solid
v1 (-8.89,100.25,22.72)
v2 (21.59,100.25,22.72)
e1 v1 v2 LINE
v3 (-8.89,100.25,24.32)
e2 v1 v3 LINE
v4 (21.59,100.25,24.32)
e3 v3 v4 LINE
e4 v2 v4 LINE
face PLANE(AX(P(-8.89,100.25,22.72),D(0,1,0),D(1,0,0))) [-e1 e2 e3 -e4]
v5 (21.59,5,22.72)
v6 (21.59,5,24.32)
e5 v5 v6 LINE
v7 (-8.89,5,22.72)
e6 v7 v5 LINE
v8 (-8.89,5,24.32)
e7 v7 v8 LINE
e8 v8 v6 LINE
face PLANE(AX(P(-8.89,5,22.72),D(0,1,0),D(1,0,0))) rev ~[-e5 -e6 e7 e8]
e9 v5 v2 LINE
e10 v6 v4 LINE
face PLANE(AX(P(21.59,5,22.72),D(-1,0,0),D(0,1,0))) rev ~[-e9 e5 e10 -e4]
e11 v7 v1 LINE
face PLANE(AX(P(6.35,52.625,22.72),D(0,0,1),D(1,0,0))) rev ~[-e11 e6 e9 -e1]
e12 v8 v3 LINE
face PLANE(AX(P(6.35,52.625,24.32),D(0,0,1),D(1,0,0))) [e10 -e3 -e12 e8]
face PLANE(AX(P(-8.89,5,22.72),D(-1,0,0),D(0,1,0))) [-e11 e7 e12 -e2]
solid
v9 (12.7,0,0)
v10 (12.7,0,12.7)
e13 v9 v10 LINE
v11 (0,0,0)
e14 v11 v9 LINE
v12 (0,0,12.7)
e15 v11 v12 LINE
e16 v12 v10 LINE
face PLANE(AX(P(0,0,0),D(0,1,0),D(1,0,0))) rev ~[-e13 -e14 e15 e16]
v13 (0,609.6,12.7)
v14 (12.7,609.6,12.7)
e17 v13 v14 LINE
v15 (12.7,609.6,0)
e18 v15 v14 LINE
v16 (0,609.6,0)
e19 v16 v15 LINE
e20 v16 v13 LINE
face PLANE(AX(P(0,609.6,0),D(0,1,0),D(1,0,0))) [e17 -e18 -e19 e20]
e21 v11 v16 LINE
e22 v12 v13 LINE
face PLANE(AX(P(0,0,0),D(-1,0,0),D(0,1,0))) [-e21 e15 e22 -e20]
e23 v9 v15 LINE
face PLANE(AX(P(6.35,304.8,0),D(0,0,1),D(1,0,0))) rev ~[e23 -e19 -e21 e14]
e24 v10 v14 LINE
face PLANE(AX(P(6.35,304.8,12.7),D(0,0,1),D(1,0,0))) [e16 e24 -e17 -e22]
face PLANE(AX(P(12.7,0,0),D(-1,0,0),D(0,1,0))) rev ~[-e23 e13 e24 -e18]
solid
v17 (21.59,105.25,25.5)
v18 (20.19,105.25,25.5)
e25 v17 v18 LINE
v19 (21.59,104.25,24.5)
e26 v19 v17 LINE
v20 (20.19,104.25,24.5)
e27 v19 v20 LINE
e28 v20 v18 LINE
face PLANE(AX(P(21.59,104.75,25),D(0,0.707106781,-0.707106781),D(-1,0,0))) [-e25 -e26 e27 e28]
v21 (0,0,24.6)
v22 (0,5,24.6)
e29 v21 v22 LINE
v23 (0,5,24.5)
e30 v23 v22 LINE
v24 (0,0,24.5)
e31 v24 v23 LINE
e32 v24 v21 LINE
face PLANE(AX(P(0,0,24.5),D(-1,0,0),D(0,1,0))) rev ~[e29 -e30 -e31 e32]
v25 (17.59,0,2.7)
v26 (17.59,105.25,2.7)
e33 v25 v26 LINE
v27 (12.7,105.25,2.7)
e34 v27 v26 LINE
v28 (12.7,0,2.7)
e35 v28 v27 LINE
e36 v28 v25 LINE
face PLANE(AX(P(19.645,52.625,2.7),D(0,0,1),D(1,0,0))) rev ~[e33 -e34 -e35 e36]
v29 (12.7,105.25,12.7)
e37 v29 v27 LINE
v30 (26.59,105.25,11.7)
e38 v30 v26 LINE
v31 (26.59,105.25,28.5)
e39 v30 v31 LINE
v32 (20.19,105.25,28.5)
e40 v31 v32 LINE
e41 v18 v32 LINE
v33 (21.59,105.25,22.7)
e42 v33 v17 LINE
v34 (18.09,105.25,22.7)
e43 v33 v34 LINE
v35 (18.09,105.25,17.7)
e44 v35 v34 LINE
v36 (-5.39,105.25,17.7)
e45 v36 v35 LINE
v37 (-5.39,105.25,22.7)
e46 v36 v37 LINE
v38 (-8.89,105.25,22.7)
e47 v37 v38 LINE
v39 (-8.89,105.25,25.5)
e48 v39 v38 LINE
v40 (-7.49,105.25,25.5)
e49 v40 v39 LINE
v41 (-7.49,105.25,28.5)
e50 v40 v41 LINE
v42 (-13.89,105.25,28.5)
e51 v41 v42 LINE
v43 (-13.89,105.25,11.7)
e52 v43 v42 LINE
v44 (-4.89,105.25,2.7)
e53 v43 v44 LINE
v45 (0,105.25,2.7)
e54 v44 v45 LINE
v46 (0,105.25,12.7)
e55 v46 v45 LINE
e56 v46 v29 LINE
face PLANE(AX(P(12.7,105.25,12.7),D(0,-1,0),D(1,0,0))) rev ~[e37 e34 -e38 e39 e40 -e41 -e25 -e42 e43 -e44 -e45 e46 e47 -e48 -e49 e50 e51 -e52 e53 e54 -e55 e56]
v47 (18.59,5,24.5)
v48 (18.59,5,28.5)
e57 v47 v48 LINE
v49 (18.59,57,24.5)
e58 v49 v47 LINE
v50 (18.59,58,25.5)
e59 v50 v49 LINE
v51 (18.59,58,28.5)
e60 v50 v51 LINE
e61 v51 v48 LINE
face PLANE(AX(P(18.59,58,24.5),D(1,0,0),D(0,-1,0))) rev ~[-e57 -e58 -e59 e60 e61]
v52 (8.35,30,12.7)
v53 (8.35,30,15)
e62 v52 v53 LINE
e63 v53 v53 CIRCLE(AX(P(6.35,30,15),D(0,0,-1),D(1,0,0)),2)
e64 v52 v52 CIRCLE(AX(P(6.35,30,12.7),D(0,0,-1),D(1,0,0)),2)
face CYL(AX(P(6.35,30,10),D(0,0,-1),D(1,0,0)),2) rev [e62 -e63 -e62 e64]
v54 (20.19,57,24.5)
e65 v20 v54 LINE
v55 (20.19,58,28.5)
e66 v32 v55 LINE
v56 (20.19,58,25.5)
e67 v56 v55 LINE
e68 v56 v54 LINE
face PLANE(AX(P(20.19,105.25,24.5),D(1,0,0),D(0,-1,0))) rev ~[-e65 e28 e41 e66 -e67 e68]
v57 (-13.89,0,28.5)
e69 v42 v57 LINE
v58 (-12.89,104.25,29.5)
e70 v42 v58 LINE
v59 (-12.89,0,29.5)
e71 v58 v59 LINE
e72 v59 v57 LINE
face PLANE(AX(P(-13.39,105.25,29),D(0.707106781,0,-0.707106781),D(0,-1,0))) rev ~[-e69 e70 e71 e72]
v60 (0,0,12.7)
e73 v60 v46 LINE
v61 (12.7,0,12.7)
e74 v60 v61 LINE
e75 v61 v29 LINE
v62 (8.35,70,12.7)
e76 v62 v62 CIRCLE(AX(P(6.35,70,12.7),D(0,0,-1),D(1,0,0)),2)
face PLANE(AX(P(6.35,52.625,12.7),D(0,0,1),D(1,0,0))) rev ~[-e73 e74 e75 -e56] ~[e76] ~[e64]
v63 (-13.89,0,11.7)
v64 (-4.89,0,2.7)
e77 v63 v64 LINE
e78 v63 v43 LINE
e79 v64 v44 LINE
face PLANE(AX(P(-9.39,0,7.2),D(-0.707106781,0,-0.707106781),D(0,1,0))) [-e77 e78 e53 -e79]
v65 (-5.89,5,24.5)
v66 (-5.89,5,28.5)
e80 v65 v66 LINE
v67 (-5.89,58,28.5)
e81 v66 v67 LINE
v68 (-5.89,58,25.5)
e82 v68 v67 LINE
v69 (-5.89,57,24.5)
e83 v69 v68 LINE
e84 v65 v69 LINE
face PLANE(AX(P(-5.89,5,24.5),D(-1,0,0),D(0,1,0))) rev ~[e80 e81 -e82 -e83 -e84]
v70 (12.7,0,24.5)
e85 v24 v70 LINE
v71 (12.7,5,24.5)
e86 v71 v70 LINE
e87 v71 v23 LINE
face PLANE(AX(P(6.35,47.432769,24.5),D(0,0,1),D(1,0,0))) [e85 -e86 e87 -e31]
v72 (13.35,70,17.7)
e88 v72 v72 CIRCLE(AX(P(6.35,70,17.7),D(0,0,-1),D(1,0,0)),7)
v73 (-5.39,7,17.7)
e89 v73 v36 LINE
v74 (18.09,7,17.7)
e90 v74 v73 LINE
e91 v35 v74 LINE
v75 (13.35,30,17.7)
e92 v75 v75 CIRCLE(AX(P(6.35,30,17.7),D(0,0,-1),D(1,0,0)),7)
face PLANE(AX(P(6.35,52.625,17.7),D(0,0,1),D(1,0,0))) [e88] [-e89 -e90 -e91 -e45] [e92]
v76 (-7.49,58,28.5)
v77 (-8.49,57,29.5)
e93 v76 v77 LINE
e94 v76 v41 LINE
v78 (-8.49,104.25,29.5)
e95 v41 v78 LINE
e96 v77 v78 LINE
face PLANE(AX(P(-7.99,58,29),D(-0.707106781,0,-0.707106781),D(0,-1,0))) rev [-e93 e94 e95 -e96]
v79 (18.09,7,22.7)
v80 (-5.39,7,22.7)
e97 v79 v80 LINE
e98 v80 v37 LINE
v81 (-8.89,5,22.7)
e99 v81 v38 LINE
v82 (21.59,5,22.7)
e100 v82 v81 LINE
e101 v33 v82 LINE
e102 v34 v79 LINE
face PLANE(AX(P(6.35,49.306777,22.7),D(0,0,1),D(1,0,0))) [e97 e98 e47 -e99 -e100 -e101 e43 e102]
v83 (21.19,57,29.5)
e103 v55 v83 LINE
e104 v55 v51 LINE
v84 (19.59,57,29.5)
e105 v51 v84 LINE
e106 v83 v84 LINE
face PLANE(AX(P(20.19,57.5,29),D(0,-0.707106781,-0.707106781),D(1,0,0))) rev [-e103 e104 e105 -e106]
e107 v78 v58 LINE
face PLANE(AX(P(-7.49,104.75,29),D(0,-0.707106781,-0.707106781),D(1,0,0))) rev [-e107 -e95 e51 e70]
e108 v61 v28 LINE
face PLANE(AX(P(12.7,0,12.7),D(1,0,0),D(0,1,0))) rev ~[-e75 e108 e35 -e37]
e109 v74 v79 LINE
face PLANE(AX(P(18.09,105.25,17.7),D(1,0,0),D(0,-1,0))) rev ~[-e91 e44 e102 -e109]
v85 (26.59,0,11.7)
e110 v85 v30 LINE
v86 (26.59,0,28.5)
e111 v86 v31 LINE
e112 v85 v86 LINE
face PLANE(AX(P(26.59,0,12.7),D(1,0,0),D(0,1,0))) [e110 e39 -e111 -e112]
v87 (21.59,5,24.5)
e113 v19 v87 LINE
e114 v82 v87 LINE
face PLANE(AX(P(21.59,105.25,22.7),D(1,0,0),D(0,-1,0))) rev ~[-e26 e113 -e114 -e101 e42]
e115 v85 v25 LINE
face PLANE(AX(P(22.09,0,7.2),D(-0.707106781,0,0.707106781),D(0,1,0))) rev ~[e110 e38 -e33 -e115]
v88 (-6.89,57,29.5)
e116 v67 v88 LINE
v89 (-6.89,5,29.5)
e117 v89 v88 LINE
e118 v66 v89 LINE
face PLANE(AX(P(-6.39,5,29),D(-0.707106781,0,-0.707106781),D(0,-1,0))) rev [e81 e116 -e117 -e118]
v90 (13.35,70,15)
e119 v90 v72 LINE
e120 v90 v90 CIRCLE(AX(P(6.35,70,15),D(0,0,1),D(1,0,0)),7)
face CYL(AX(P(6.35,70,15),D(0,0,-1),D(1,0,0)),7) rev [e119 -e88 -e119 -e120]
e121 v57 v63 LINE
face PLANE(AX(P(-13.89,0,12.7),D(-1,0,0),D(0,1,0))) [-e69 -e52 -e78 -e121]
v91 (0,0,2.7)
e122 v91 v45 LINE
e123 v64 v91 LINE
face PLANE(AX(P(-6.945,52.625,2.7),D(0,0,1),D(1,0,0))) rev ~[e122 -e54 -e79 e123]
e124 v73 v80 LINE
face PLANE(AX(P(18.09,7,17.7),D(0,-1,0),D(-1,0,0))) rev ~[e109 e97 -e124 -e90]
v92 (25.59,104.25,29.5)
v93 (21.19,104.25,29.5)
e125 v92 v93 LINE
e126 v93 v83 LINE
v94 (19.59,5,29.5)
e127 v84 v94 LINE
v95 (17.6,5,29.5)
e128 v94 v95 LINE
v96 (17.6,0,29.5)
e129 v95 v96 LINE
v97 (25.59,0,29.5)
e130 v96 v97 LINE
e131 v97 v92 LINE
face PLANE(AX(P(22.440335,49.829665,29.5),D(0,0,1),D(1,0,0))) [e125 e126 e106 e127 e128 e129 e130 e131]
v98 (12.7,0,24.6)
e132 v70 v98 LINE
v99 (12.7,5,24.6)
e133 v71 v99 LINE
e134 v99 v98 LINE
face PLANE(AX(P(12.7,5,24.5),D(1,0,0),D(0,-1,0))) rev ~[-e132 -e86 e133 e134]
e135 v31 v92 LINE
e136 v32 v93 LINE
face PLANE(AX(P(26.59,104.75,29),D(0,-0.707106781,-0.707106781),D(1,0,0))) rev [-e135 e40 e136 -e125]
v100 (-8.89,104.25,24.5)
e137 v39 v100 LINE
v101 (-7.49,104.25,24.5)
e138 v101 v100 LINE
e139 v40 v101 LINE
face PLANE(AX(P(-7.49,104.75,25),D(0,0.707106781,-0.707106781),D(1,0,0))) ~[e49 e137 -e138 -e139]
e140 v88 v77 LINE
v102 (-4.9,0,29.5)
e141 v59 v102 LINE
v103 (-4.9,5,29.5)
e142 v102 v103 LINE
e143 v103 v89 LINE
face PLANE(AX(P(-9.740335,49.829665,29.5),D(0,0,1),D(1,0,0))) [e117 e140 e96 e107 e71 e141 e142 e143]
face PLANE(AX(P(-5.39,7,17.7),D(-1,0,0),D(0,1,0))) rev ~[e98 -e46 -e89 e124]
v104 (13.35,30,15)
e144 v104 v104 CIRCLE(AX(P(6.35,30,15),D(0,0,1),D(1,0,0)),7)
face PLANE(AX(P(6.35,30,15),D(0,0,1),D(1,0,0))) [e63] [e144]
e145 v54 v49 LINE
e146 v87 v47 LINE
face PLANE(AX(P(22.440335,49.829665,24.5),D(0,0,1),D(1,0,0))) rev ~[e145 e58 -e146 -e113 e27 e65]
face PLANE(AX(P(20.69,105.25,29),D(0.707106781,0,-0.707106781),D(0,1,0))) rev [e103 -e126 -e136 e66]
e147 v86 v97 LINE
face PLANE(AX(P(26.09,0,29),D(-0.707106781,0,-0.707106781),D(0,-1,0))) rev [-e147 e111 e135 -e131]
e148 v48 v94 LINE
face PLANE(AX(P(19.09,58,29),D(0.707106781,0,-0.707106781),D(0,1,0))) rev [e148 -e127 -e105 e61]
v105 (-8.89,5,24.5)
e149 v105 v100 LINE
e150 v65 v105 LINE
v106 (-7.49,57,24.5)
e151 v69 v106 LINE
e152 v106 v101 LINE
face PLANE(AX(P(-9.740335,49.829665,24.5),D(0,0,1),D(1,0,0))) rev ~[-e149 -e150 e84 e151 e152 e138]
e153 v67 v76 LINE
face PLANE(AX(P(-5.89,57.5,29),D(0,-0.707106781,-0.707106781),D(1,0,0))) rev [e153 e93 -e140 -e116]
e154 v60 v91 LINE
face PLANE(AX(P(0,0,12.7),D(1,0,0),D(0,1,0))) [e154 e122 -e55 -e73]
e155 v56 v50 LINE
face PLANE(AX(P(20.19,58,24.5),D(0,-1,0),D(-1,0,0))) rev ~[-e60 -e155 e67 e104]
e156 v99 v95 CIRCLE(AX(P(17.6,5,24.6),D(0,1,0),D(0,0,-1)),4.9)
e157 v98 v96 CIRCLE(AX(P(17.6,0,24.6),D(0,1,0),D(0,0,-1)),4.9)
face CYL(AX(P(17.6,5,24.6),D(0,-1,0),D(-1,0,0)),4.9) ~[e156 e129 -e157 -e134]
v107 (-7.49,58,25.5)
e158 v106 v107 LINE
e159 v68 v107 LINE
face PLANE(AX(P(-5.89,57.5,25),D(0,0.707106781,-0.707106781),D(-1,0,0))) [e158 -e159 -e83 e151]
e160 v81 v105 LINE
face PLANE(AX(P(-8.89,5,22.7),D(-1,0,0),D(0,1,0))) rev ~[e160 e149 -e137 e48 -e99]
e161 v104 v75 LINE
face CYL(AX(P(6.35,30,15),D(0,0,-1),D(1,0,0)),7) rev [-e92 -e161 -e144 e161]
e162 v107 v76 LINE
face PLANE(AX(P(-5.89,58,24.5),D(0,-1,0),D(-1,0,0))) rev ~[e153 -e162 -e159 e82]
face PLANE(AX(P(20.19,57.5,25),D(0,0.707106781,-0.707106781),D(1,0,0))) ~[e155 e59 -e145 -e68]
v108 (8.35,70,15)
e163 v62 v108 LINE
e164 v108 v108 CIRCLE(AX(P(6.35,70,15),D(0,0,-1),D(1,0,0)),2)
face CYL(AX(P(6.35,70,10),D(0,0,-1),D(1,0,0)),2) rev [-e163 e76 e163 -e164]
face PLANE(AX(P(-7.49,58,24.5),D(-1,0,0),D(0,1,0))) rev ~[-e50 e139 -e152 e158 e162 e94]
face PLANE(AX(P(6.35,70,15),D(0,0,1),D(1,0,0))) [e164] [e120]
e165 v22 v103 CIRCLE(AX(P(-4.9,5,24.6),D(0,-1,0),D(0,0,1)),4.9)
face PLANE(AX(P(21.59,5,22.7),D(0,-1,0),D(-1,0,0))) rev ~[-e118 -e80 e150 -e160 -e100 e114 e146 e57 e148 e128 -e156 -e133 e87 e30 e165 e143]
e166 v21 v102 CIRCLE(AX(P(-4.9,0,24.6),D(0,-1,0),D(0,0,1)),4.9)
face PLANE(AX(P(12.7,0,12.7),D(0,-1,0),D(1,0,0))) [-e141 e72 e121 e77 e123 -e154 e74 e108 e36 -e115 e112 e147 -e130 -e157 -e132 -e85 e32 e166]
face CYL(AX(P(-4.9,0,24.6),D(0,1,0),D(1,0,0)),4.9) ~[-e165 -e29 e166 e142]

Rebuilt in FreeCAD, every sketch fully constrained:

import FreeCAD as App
import Part
import Sketcher
Q = App.Units.Quantity


def edges_at(feature, points):
    """Names of the edges that pass closest to the given points."""
    edges = feature.Shape.Edges
    near = lambda p: min(range(len(edges)), key=lambda i: edges[i].distToShape(Part.Vertex(*p))[0])
    return sorted({f"Edge{near(p) + 1}" for p in points})

doc = App.newDocument("Part")
body = doc.addObject("PartDesign::Body", "Body")

sketch1 = body.newObject("Sketcher::SketchObject", "Sketch")
sketch1.AttachmentSupport = (doc.getObject("XY_Plane"), [""])
sketch1.MapMode = "FlatFace"
sketch1.addGeometry(Part.LineSegment(App.Vector(0, 610, 0), App.Vector(0, 0, 0)), False)
sketch1.addGeometry(Part.LineSegment(App.Vector(0, 0, 0), App.Vector(13, 0, 0)), False)
sketch1.addGeometry(Part.LineSegment(App.Vector(13, 0, 0), App.Vector(13, 610, 0)), False)
sketch1.addGeometry(Part.LineSegment(App.Vector(13, 610, 0), App.Vector(0, 610, 0)), False)
sketch1.addConstraint(Sketcher.Constraint("Coincident", 0, 2, 1, 1))
sketch1.addConstraint(Sketcher.Constraint("Coincident", 1, 2, 2, 1))
sketch1.addConstraint(Sketcher.Constraint("Coincident", 2, 2, 3, 1))
sketch1.addConstraint(Sketcher.Constraint("Coincident", 3, 2, 0, 1))
sketch1.addConstraint(Sketcher.Constraint("Vertical", 0))
sketch1.addConstraint(Sketcher.Constraint("Horizontal", 1))
sketch1.addConstraint(Sketcher.Constraint("Vertical", 2))
sketch1.addConstraint(Sketcher.Constraint("Horizontal", 3))
sketch1.addConstraint(Sketcher.Constraint("Coincident", 0, 2, -1, 1))
sketch1.addConstraint(Sketcher.Constraint("DistanceX", 1, 1, 1, 2, Q("12.7 mm")))
sketch1.addConstraint(Sketcher.Constraint("DistanceY", 0, 2, 0, 1, Q("609.6 mm")))
pad1 = body.newObject("PartDesign::Pad", "Pad")
pad1.Profile = sketch1
pad1.Length = 12.7
body2 = doc.addObject("PartDesign::Body", "Body001")

sketch2 = body2.newObject("Sketcher::SketchObject", "Sketch001")
sketch2.AttachmentSupport = (doc.getObject("XY_Plane001"), [""])
sketch2.MapMode = "FlatFace"
sketch2.AttachmentOffset = App.Placement(App.Vector(0, 0, 22.72), App.Rotation())
sketch2.addGeometry(Part.LineSegment(App.Vector(-9, 100, 0), App.Vector(-9, 5, 0)), False)
sketch2.addGeometry(Part.LineSegment(App.Vector(-9, 5, 0), App.Vector(22, 5, 0)), False)
sketch2.addGeometry(Part.LineSegment(App.Vector(22, 5, 0), App.Vector(22, 100, 0)), False)
sketch2.addGeometry(Part.LineSegment(App.Vector(22, 100, 0), App.Vector(-9, 100, 0)), False)
sketch2.addConstraint(Sketcher.Constraint("Coincident", 0, 2, 1, 1))
sketch2.addConstraint(Sketcher.Constraint("Coincident", 1, 2, 2, 1))
sketch2.addConstraint(Sketcher.Constraint("Coincident", 2, 2, 3, 1))
sketch2.addConstraint(Sketcher.Constraint("Coincident", 3, 2, 0, 1))
sketch2.addConstraint(Sketcher.Constraint("Vertical", 0))
sketch2.addConstraint(Sketcher.Constraint("Horizontal", 1))
sketch2.addConstraint(Sketcher.Constraint("Vertical", 2))
sketch2.addConstraint(Sketcher.Constraint("Horizontal", 3))
sketch2.addConstraint(Sketcher.Constraint("DistanceY", -1, 1, 0, 2, Q("5 mm")))
sketch2.addConstraint(Sketcher.Constraint("DistanceX", 1, 1, 1, 2, Q("30.48 mm")))
sketch2.addConstraint(Sketcher.Constraint("DistanceY", 0, 2, 0, 1, Q("95.25 mm")))
sketch2.addConstraint(Sketcher.Constraint("DistanceX", 0, 2, -1, 1, Q("8.89 mm")))
pad2 = body2.newObject("PartDesign::Pad", "Pad001")
pad2.Profile = sketch2
pad2.Length = 1.6
body3 = doc.addObject("PartDesign::Body", "Body002")

sketch3 = body3.newObject("Sketcher::SketchObject", "Sketch002")
sketch3.AttachmentSupport = (doc.getObject("XY_Plane002"), [""])
sketch3.MapMode = "FlatFace"
sketch3.AttachmentOffset = App.Placement(App.Vector(0, 0, 15), App.Rotation())
sketch3.addGeometry(Part.Circle(App.Vector(6, 30, 0), App.Vector(0, 0, 1), 7), False)
sketch3.addConstraint(Sketcher.Constraint("Diameter", 0, Q("14 mm")))
sketch3.addConstraint(Sketcher.Constraint("DistanceY", -1, 1, 0, 3, Q("30 mm")))
sketch3.addConstraint(Sketcher.Constraint("DistanceX", -1, 1, 0, 3, Q("6.35 mm")))
pad3 = body3.newObject("PartDesign::Pad", "Pad002")
pad3.Profile = sketch3
pad3.Length = 3
body4 = doc.addObject("PartDesign::Body", "Body003")

sketch4 = body4.newObject("Sketcher::SketchObject", "Sketch003")
sketch4.AttachmentSupport = (doc.getObject("XY_Plane003"), [""])
sketch4.MapMode = "FlatFace"
sketch4.AttachmentOffset = App.Placement(App.Vector(0, 0, 15), App.Rotation())
sketch4.addGeometry(Part.Circle(App.Vector(6, 70, 0), App.Vector(0, 0, 1), 7), False)
sketch4.addConstraint(Sketcher.Constraint("Diameter", 0, Q("14 mm")))
sketch4.addConstraint(Sketcher.Constraint("DistanceY", -1, 1, 0, 3, Q("70 mm")))
sketch4.addConstraint(Sketcher.Constraint("DistanceX", -1, 1, 0, 3, Q("6.35 mm")))
pad4 = body4.newObject("PartDesign::Pad", "Pad003")
pad4.Profile = sketch4
pad4.Length = 3
body5 = doc.addObject("PartDesign::Body", "Body004")

sketch5 = body5.newObject("Sketcher::SketchObject", "Sketch004")
sketch5.AttachmentSupport = (doc.getObject("XY_Plane004"), [""])
sketch5.MapMode = "FlatFace"
sketch5.AttachmentOffset = App.Placement(App.Vector(0, 0, 10), App.Rotation())
sketch5.addGeometry(Part.Circle(App.Vector(6.3, 70, 0), App.Vector(0, 0, 1), 2), False)
sketch5.addConstraint(Sketcher.Constraint("Diameter", 0, Q("4 mm")))
sketch5.addConstraint(Sketcher.Constraint("DistanceY", -1, 1, 0, 3, Q("70 mm")))
sketch5.addConstraint(Sketcher.Constraint("DistanceX", -1, 1, 0, 3, Q("6.35 mm")))
pad5 = body5.newObject("PartDesign::Pad", "Pad004")
pad5.Profile = sketch5
pad5.Length = 10
body6 = doc.addObject("PartDesign::Body", "Body005")

sketch6 = body6.newObject("Sketcher::SketchObject", "Sketch005")
sketch6.AttachmentSupport = (doc.getObject("XY_Plane005"), [""])
sketch6.MapMode = "FlatFace"
sketch6.AttachmentOffset = App.Placement(App.Vector(0, 0, 10), App.Rotation())
sketch6.addGeometry(Part.Circle(App.Vector(6.3, 30, 0), App.Vector(0, 0, 1), 2), False)
sketch6.addConstraint(Sketcher.Constraint("Diameter", 0, Q("4 mm")))
sketch6.addConstraint(Sketcher.Constraint("DistanceY", -1, 1, 0, 3, Q("30 mm")))
sketch6.addConstraint(Sketcher.Constraint("DistanceX", -1, 1, 0, 3, Q("6.35 mm")))
pad6 = body6.newObject("PartDesign::Pad", "Pad005")
pad6.Profile = sketch6
pad6.Length = 10
body7 = doc.addObject("PartDesign::Body", "Body006")

sketch7 = body7.newObject("Sketcher::SketchObject", "Sketch006")
sketch7.AttachmentSupport = (doc.getObject("XY_Plane006"), [""])
sketch7.MapMode = "FlatFace"
sketch7.addGeometry(Part.LineSegment(App.Vector(-20, 105, 0), App.Vector(-20, 0, 0)), False)
sketch7.addGeometry(Part.LineSegment(App.Vector(-20, 0, 0), App.Vector(20, 0, 0)), False)
sketch7.addGeometry(Part.LineSegment(App.Vector(20, 0, 0), App.Vector(20, 105, 0)), False)
sketch7.addGeometry(Part.LineSegment(App.Vector(20, 105, 0), App.Vector(-20, 105, 0)), False)
sketch7.addConstraint(Sketcher.Constraint("Coincident", 0, 2, 1, 1))
sketch7.addConstraint(Sketcher.Constraint("Coincident", 1, 2, 2, 1))
sketch7.addConstraint(Sketcher.Constraint("Coincident", 2, 2, 3, 1))
sketch7.addConstraint(Sketcher.Constraint("Coincident", 3, 2, 0, 1))
sketch7.addConstraint(Sketcher.Constraint("Vertical", 0))
sketch7.addConstraint(Sketcher.Constraint("Horizontal", 1))
sketch7.addConstraint(Sketcher.Constraint("Vertical", 2))
sketch7.addConstraint(Sketcher.Constraint("Horizontal", 3))
sketch7.addConstraint(Sketcher.Constraint("Symmetric", 0, 2, 1, 2, -1, 1))
sketch7.addConstraint(Sketcher.Constraint("DistanceX", 1, 1, 1, 2, Q("40.48 mm")))
sketch7.addConstraint(Sketcher.Constraint("DistanceY", 0, 2, 0, 1, Q("105.25 mm")))
pad7 = body7.newObject("PartDesign::Pad", "Pad006")
pad7.Profile = sketch7
pad7.Length = 5
body8 = doc.addObject("PartDesign::Body", "Body007")
doc.recompute()

body7.Placement = App.Placement(App.Vector(6.35, 0, 12.7), App.Rotation(App.Vector(0, 0, 1), 0))
boolean = body8.newObject("PartDesign::Boolean", "Boolean")
boolean.Type = "Fuse"
boolean.addObjects([body7])
doc.recompute()

boolean2 = body8.newObject("PartDesign::Boolean", "Boolean001")
boolean2.Type = "Cut"
boolean2.addObjects([body6])
doc.recompute()

boolean3 = body8.newObject("PartDesign::Boolean", "Boolean002")
boolean3.Type = "Cut"
boolean3.addObjects([body5])
doc.recompute()

boolean4 = body8.newObject("PartDesign::Boolean", "Boolean003")
boolean4.Type = "Cut"
boolean4.addObjects([body4])
doc.recompute()

boolean5 = body8.newObject("PartDesign::Boolean", "Boolean004")
boolean5.Type = "Cut"
boolean5.addObjects([body3])
body9 = doc.addObject("PartDesign::Body", "Body008")
body9.AllowCompound = True

sketch8 = body9.newObject("Sketcher::SketchObject", "Sketch007")
sketch8.AttachmentSupport = (doc.getObject("XY_Plane008"), [""])
sketch8.MapMode = "FlatFace"
sketch8.AttachmentOffset = App.Placement(App.Vector(0, 0, 12.7), App.Rotation())
sketch8.addGeometry(Part.LineSegment(App.Vector(-14, 105, 0), App.Vector(-14, 0, 0)), False)
sketch8.addGeometry(Part.LineSegment(App.Vector(-14, 0, 0), App.Vector(0, 0, 0)), False)
sketch8.addGeometry(Part.LineSegment(App.Vector(0, 0, 0), App.Vector(0, 105, 0)), False)
sketch8.addGeometry(Part.LineSegment(App.Vector(0, 105, 0), App.Vector(-14, 105, 0)), False)
sketch8.addGeometry(Part.LineSegment(App.Vector(13, 105, 0), App.Vector(13, 0, 0)), False)
sketch8.addGeometry(Part.LineSegment(App.Vector(13, 0, 0), App.Vector(27, 0, 0)), False)
sketch8.addGeometry(Part.LineSegment(App.Vector(27, 0, 0), App.Vector(27, 105, 0)), False)
sketch8.addGeometry(Part.LineSegment(App.Vector(27, 105, 0), App.Vector(13, 105, 0)), False)
sketch8.addConstraint(Sketcher.Constraint("Coincident", 0, 2, 1, 1))
sketch8.addConstraint(Sketcher.Constraint("Coincident", 1, 2, 2, 1))
sketch8.addConstraint(Sketcher.Constraint("Coincident", 2, 2, 3, 1))
sketch8.addConstraint(Sketcher.Constraint("Coincident", 3, 2, 0, 1))
sketch8.addConstraint(Sketcher.Constraint("Coincident", 4, 2, 5, 1))
sketch8.addConstraint(Sketcher.Constraint("Coincident", 5, 2, 6, 1))
sketch8.addConstraint(Sketcher.Constraint("Coincident", 6, 2, 7, 1))
sketch8.addConstraint(Sketcher.Constraint("Coincident", 7, 2, 4, 1))
sketch8.addConstraint(Sketcher.Constraint("Vertical", 0))
sketch8.addConstraint(Sketcher.Constraint("Horizontal", 1))
sketch8.addConstraint(Sketcher.Constraint("Vertical", 2))
sketch8.addConstraint(Sketcher.Constraint("Horizontal", 3))
sketch8.addConstraint(Sketcher.Constraint("Vertical", 4))
sketch8.addConstraint(Sketcher.Constraint("Horizontal", 5))
sketch8.addConstraint(Sketcher.Constraint("Vertical", 6))
sketch8.addConstraint(Sketcher.Constraint("Horizontal", 7))
sketch8.addConstraint(Sketcher.Constraint("Coincident", 1, 2, -1, 1))
sketch8.addConstraint(Sketcher.Constraint("PointOnObject", 4, 2, -1))
sketch8.addConstraint(Sketcher.Constraint("Horizontal", 3, 2, 6, 2))
sketch8.addConstraint(Sketcher.Constraint("Equal", 3, 5))
sketch8.addConstraint(Sketcher.Constraint("DistanceX", 1, 1, 1, 2, Q("13.89 mm")))
sketch8.addConstraint(Sketcher.Constraint("DistanceY", 0, 2, 0, 1, Q("105.25 mm")))
sketch8.addConstraint(Sketcher.Constraint("DistanceX", -1, 1, 4, 2, Q("12.7 mm")))
pad8 = body9.newObject("PartDesign::Pad", "Pad007")
pad8.Profile = sketch8
pad8.Length = 10
pad8.Reversed = True
doc.recompute()

chamfer = body9.newObject("PartDesign::Chamfer", "Chamfer")
chamfer.Base = (pad8, edges_at(pad8, [(26.59, 52.625, 2.7), (-13.89, 52.625, 2.7)]))
chamfer.Size = 9
body10 = doc.addObject("PartDesign::Body", "Body009")

sketch9 = body10.newObject("Sketcher::SketchObject", "Sketch008")
sketch9.AttachmentSupport = (doc.getObject("XY_Plane009"), [""])
sketch9.MapMode = "FlatFace"
sketch9.AttachmentOffset = App.Placement(App.Vector(0, 0, 17.7), App.Rotation())
sketch9.addGeometry(Part.LineSegment(App.Vector(-14, 0, 0), App.Vector(27, 0, 0)), False)
sketch9.addGeometry(Part.LineSegment(App.Vector(27, 0, 0), App.Vector(27, 105, 0)), False)
sketch9.addGeometry(Part.LineSegment(App.Vector(27, 105, 0), App.Vector(18, 105, 0)), False)
sketch9.addGeometry(Part.LineSegment(App.Vector(18, 105, 0), App.Vector(18, 7, 0)), False)
sketch9.addGeometry(Part.LineSegment(App.Vector(18, 7, 0), App.Vector(-5, 7, 0)), False)
sketch9.addGeometry(Part.LineSegment(App.Vector(-5, 7, 0), App.Vector(-5, 105, 0)), False)
sketch9.addGeometry(Part.LineSegment(App.Vector(-5, 105, 0), App.Vector(-14, 105, 0)), False)
sketch9.addGeometry(Part.LineSegment(App.Vector(-14, 105, 0), App.Vector(-14, 0, 0)), False)
sketch9.addConstraint(Sketcher.Constraint("Coincident", 0, 2, 1, 1))
sketch9.addConstraint(Sketcher.Constraint("Coincident", 1, 2, 2, 1))
sketch9.addConstraint(Sketcher.Constraint("Coincident", 2, 2, 3, 1))
sketch9.addConstraint(Sketcher.Constraint("Coincident", 3, 2, 4, 1))
sketch9.addConstraint(Sketcher.Constraint("Coincident", 4, 2, 5, 1))
sketch9.addConstraint(Sketcher.Constraint("Coincident", 5, 2, 6, 1))
sketch9.addConstraint(Sketcher.Constraint("Coincident", 6, 2, 7, 1))
sketch9.addConstraint(Sketcher.Constraint("Coincident", 7, 2, 0, 1))
sketch9.addConstraint(Sketcher.Constraint("Horizontal", 0))
sketch9.addConstraint(Sketcher.Constraint("Vertical", 1))
sketch9.addConstraint(Sketcher.Constraint("Horizontal", 2))
sketch9.addConstraint(Sketcher.Constraint("Vertical", 3))
sketch9.addConstraint(Sketcher.Constraint("Horizontal", 4))
sketch9.addConstraint(Sketcher.Constraint("Vertical", 5))
sketch9.addConstraint(Sketcher.Constraint("Horizontal", 6))
sketch9.addConstraint(Sketcher.Constraint("Vertical", 7))
sketch9.addConstraint(Sketcher.Constraint("PointOnObject", 0, 2, -1))
sketch9.addConstraint(Sketcher.Constraint("Horizontal", 2, 2, 5, 2))
sketch9.addConstraint(Sketcher.Constraint("Equal", 2, 6))
sketch9.addConstraint(Sketcher.Constraint("DistanceX", 2, 2, 2, 1, Q("8.5 mm")))
sketch9.addConstraint(Sketcher.Constraint("DistanceY", -1, 1, 3, 2, Q("7 mm")))
sketch9.addConstraint(Sketcher.Constraint("DistanceX", 0, 1, 0, 2, Q("40.48 mm")))
sketch9.addConstraint(Sketcher.Constraint("DistanceY", 1, 1, 1, 2, Q("105.25 mm")))
sketch9.addConstraint(Sketcher.Constraint("DistanceX", -1, 1, 0, 2, Q("26.59 mm")))
pad9 = body10.newObject("PartDesign::Pad", "Pad008")
pad9.Profile = sketch9
pad9.Length = 5
body11 = doc.addObject("PartDesign::Body", "Body010")

sketch10 = body11.newObject("Sketcher::SketchObject", "Sketch009")
sketch10.AttachmentSupport = (doc.getObject("XY_Plane010"), [""])
sketch10.MapMode = "FlatFace"
sketch10.AttachmentOffset = App.Placement(App.Vector(0, 0, 22.7), App.Rotation())
sketch10.addGeometry(Part.LineSegment(App.Vector(-14, 0, 0), App.Vector(27, 0, 0)), False)
sketch10.addGeometry(Part.LineSegment(App.Vector(27, 0, 0), App.Vector(27, 105, 0)), False)
sketch10.addGeometry(Part.LineSegment(App.Vector(27, 105, 0), App.Vector(22, 105, 0)), False)
sketch10.addGeometry(Part.LineSegment(App.Vector(22, 105, 0), App.Vector(22, 5, 0)), False)
sketch10.addGeometry(Part.LineSegment(App.Vector(22, 5, 0), App.Vector(-9, 5, 0)), False)
sketch10.addGeometry(Part.LineSegment(App.Vector(-9, 5, 0), App.Vector(-9, 105, 0)), False)
sketch10.addGeometry(Part.LineSegment(App.Vector(-9, 105, 0), App.Vector(-14, 105, 0)), False)
sketch10.addGeometry(Part.LineSegment(App.Vector(-14, 105, 0), App.Vector(-14, 0, 0)), False)
sketch10.addConstraint(Sketcher.Constraint("Coincident", 0, 2, 1, 1))
sketch10.addConstraint(Sketcher.Constraint("Coincident", 1, 2, 2, 1))
sketch10.addConstraint(Sketcher.Constraint("Coincident", 2, 2, 3, 1))
sketch10.addConstraint(Sketcher.Constraint("Coincident", 3, 2, 4, 1))
sketch10.addConstraint(Sketcher.Constraint("Coincident", 4, 2, 5, 1))
sketch10.addConstraint(Sketcher.Constraint("Coincident", 5, 2, 6, 1))
sketch10.addConstraint(Sketcher.Constraint("Coincident", 6, 2, 7, 1))
sketch10.addConstraint(Sketcher.Constraint("Coincident", 7, 2, 0, 1))
sketch10.addConstraint(Sketcher.Constraint("Horizontal", 0))
sketch10.addConstraint(Sketcher.Constraint("Vertical", 1))
sketch10.addConstraint(Sketcher.Constraint("Horizontal", 2))
sketch10.addConstraint(Sketcher.Constraint("Vertical", 3))
sketch10.addConstraint(Sketcher.Constraint("Horizontal", 4))
sketch10.addConstraint(Sketcher.Constraint("Vertical", 5))
sketch10.addConstraint(Sketcher.Constraint("Horizontal", 6))
sketch10.addConstraint(Sketcher.Constraint("Vertical", 7))
sketch10.addConstraint(Sketcher.Constraint("PointOnObject", 0, 2, -1))
sketch10.addConstraint(Sketcher.Constraint("Horizontal", 2, 2, 5, 2))
sketch10.addConstraint(Sketcher.Constraint("Equal", 2, 6))
sketch10.addConstraint(Sketcher.Constraint("DistanceX", 2, 2, 2, 1, Q("5 mm")))
sketch10.addConstraint(Sketcher.Constraint("DistanceY", -1, 1, 3, 2, Q("5 mm")))
sketch10.addConstraint(Sketcher.Constraint("DistanceX", 0, 1, 0, 2, Q("40.48 mm")))
sketch10.addConstraint(Sketcher.Constraint("DistanceY", 1, 1, 1, 2, Q("105.25 mm")))
sketch10.addConstraint(Sketcher.Constraint("DistanceX", -1, 1, 0, 2, Q("26.59 mm")))
pad10 = body11.newObject("PartDesign::Pad", "Pad009")
pad10.Profile = sketch10
pad10.Length = 1.8
body12 = doc.addObject("PartDesign::Body", "Body011")
body12.AllowCompound = True

sketch11 = body12.newObject("Sketcher::SketchObject", "Sketch010")
sketch11.AttachmentSupport = (doc.getObject("XY_Plane011"), [""])
sketch11.MapMode = "FlatFace"
sketch11.AttachmentOffset = App.Placement(App.Vector(0, 0, 24.5), App.Rotation())
sketch11.addGeometry(Part.LineSegment(App.Vector(-7.5, 105.2, 0), App.Vector(-13.9, 105.2, 0)), False)
sketch11.addGeometry(Part.LineSegment(App.Vector(-13.9, 105.2, 0), App.Vector(-13.9, 0, 0)), False)
sketch11.addGeometry(Part.LineSegment(App.Vector(-13.9, 0, 0), App.Vector(0, 0, 0)), False)
sketch11.addGeometry(Part.LineSegment(App.Vector(0, 0, 0), App.Vector(0, 5, 0)), False)
sketch11.addGeometry(Part.LineSegment(App.Vector(0, 5, 0), App.Vector(-5.9, 5, 0)), False)
sketch11.addGeometry(Part.LineSegment(App.Vector(-5.9, 5, 0), App.Vector(-5.9, 58, 0)), False)
sketch11.addGeometry(Part.LineSegment(App.Vector(-5.9, 58, 0), App.Vector(-7.5, 58, 0)), False)
sketch11.addGeometry(Part.LineSegment(App.Vector(-7.5, 58, 0), App.Vector(-7.5, 105.2, 0)), False)
sketch11.addGeometry(Part.LineSegment(App.Vector(26.6, 0, 0), App.Vector(26.6, 105.2, 0)), False)
sketch11.addGeometry(Part.LineSegment(App.Vector(26.6, 105.2, 0), App.Vector(20.2, 105.2, 0)), False)
sketch11.addGeometry(Part.LineSegment(App.Vector(20.2, 105.2, 0), App.Vector(20.2, 58, 0)), False)
sketch11.addGeometry(Part.LineSegment(App.Vector(20.2, 58, 0), App.Vector(18.6, 58, 0)), False)
sketch11.addGeometry(Part.LineSegment(App.Vector(18.6, 58, 0), App.Vector(18.6, 5, 0)), False)
sketch11.addGeometry(Part.LineSegment(App.Vector(18.6, 5, 0), App.Vector(12.7, 5, 0)), False)
sketch11.addGeometry(Part.LineSegment(App.Vector(12.7, 5, 0), App.Vector(12.7, 0, 0)), False)
sketch11.addGeometry(Part.LineSegment(App.Vector(12.7, 0, 0), App.Vector(26.6, 0, 0)), False)
sketch11.addConstraint(Sketcher.Constraint("Coincident", 0, 2, 1, 1))
sketch11.addConstraint(Sketcher.Constraint("Coincident", 1, 2, 2, 1))
sketch11.addConstraint(Sketcher.Constraint("Coincident", 2, 2, 3, 1))
sketch11.addConstraint(Sketcher.Constraint("Coincident", 3, 2, 4, 1))
sketch11.addConstraint(Sketcher.Constraint("Coincident", 4, 2, 5, 1))
sketch11.addConstraint(Sketcher.Constraint("Coincident", 5, 2, 6, 1))
sketch11.addConstraint(Sketcher.Constraint("Coincident", 6, 2, 7, 1))
sketch11.addConstraint(Sketcher.Constraint("Coincident", 7, 2, 0, 1))
sketch11.addConstraint(Sketcher.Constraint("Coincident", 8, 2, 9, 1))
sketch11.addConstraint(Sketcher.Constraint("Coincident", 9, 2, 10, 1))
sketch11.addConstraint(Sketcher.Constraint("Coincident", 10, 2, 11, 1))
sketch11.addConstraint(Sketcher.Constraint("Coincident", 11, 2, 12, 1))
sketch11.addConstraint(Sketcher.Constraint("Coincident", 12, 2, 13, 1))
sketch11.addConstraint(Sketcher.Constraint("Coincident", 13, 2, 14, 1))
sketch11.addConstraint(Sketcher.Constraint("Coincident", 14, 2, 15, 1))
sketch11.addConstraint(Sketcher.Constraint("Coincident", 15, 2, 8, 1))
sketch11.addConstraint(Sketcher.Constraint("Horizontal", 0))
sketch11.addConstraint(Sketcher.Constraint("Vertical", 1))
sketch11.addConstraint(Sketcher.Constraint("Horizontal", 2))
sketch11.addConstraint(Sketcher.Constraint("Vertical", 3))
sketch11.addConstraint(Sketcher.Constraint("Horizontal", 4))
sketch11.addConstraint(Sketcher.Constraint("Vertical", 5))
sketch11.addConstraint(Sketcher.Constraint("Horizontal", 6))
sketch11.addConstraint(Sketcher.Constraint("Vertical", 7))
sketch11.addConstraint(Sketcher.Constraint("Vertical", 8))
sketch11.addConstraint(Sketcher.Constraint("Horizontal", 9))
sketch11.addConstraint(Sketcher.Constraint("Vertical", 10))
sketch11.addConstraint(Sketcher.Constraint("Horizontal", 11))
sketch11.addConstraint(Sketcher.Constraint("Vertical", 12))
sketch11.addConstraint(Sketcher.Constraint("Horizontal", 13))
sketch11.addConstraint(Sketcher.Constraint("Vertical", 14))
sketch11.addConstraint(Sketcher.Constraint("Horizontal", 15))
sketch11.addConstraint(Sketcher.Constraint("Coincident", 2, 2, -1, 1))
sketch11.addConstraint(Sketcher.Constraint("PointOnObject", 14, 2, -1))
sketch11.addConstraint(Sketcher.Constraint("Horizontal", 7, 2, 8, 2))
sketch11.addConstraint(Sketcher.Constraint("Horizontal", 6, 2, 10, 2))
sketch11.addConstraint(Sketcher.Constraint("Horizontal", 4, 2, 12, 2))
sketch11.addConstraint(Sketcher.Constraint("Equal", 0, 9))
sketch11.addConstraint(Sketcher.Constraint("Equal", 6, 11))
sketch11.addConstraint(Sketcher.Constraint("Equal", 4, 13))
sketch11.addConstraint(Sketcher.Constraint("DistanceY", 3, 1, 3, 2, Q("5 mm")))
sketch11.addConstraint(Sketcher.Constraint("DistanceY", 5, 1, 5, 2, Q("53 mm")))
sketch11.addConstraint(Sketcher.Constraint("DistanceX", 0, 2, 0, 1, Q("6.4 mm")))
sketch11.addConstraint(Sketcher.Constraint("DistanceX", 6, 2, 6, 1, Q("1.6 mm")))
sketch11.addConstraint(Sketcher.Constraint("DistanceX", 2, 1, 2, 2, Q("13.89 mm")))
sketch11.addConstraint(Sketcher.Constraint("DistanceY", 1, 2, 1, 1, Q("105.25 mm")))
sketch11.addConstraint(Sketcher.Constraint("DistanceX", -1, 1, 13, 2, Q("12.7 mm")))
pad11 = body12.newObject("PartDesign::Pad", "Pad010")
pad11.Profile = sketch11
pad11.Length = 5
doc.recompute()

boolean6 = body12.newObject("PartDesign::Boolean", "Boolean005")
boolean6.Type = "Fuse"
boolean6.addObjects([body10])
doc.recompute()

boolean7 = body12.newObject("PartDesign::Boolean", "Boolean006")
boolean7.Type = "Fuse"
boolean7.addObjects([body11])
doc.recompute()

chamfer2 = body12.newObject("PartDesign::Chamfer", "Chamfer001")
chamfer2.Base = (boolean7, edges_at(boolean7, [
    (-10.69, 105.25, 29.5),
    (-13.89, 52.625, 29.5),
    (-7.49, 81.625, 29.5),
    (-5.89, 31.5, 29.5),
    (-6.69, 58, 29.5),
    (26.59, 52.625, 29.5),
    (23.39, 105.25, 29.5),
    (18.59, 31.5, 29.5),
    (19.39, 58, 29.5),
    (20.19, 81.625, 29.5),
]))
chamfer2.Size = 1
doc.recompute()

fillet = body12.newObject("PartDesign::Fillet", "Fillet")
fillet.Base = (chamfer2, edges_at(chamfer2, [(0, 2.5, 29.5), (12.7, 2.5, 29.5)]))
fillet.Radius = 4.9
doc.recompute()

chamfer3 = body12.newObject("PartDesign::Chamfer", "Chamfer002")
chamfer3.Base = (fillet, edges_at(fillet, [(-8.19, 105.25, 24.5), (-6.69, 58, 24.5)]))
chamfer3.Size = 1
doc.recompute()

chamfer4 = body12.newObject("PartDesign::Chamfer", "Chamfer003")
chamfer4.Base = (chamfer3, edges_at(chamfer3, [(19.39, 58, 24.5), (20.89, 105.25, 24.5)]))
chamfer4.Size = 1
doc.recompute()

boolean8 = body12.newObject("PartDesign::Boolean", "Boolean007")
boolean8.Type = "Fuse"
boolean8.addObjects([body8])
doc.recompute()

boolean9 = body12.newObject("PartDesign::Boolean", "Boolean008")
boolean9.Type = "Fuse"
boolean9.addObjects([body9])

doc.recompute()
